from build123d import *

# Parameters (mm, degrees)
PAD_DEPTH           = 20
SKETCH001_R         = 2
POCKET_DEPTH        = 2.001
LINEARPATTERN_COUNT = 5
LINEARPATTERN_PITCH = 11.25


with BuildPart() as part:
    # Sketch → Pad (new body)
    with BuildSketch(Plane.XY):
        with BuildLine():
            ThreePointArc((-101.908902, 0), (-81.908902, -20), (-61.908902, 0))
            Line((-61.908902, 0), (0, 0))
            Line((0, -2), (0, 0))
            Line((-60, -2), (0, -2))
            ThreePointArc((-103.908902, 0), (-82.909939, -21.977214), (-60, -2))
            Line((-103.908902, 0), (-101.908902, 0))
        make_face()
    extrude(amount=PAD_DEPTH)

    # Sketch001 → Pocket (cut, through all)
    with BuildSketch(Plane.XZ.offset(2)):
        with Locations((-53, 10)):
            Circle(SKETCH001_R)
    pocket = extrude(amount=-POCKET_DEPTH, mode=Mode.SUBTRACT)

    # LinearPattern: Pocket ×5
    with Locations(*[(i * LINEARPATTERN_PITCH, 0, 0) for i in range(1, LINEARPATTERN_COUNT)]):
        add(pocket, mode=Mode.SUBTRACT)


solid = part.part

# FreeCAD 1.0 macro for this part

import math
import FreeCAD as App
import Part
import Sketcher
Q = App.Units.Quantity

doc = App.newDocument("Part")
body = doc.addObject("PartDesign::Body", "Body")

# Sketch on XY plane
sketch1 = body.newObject("Sketcher::SketchObject", "Sketch")
sketch1.AttachmentSupport = (doc.getObject("XY_Plane"), [""])
sketch1.MapMode = "FlatFace"
sketch1.addGeometry([
    Part.ArcOfCircle(Part.Circle(App.Vector(-81.908902, 0, 0), App.Vector(0, 0, 1), 20), math.radians(180), math.radians(360)),  # 0
    Part.LineSegment(App.Vector(-101.908902, 0, 0), App.Vector(-103.908902, 0, 0)),  # 1
    Part.ArcOfCircle(Part.Circle(App.Vector(-81.908902, 0, 0), App.Vector(0, 0, 1), 22), math.radians(179.999999), math.radians(354.784092)),  # 2
    Part.LineSegment(App.Vector(-60, -2, 0), App.Vector(0, -2, 0)),  # 3
    Part.LineSegment(App.Vector(0, -2, 0), App.Vector(0, 0, 0)),  # 4
    Part.LineSegment(App.Vector(0, 0, 0), App.Vector(-61.908902, 0, 0)),  # 5
], False)
sketch1.addConstraint([
    Sketcher.Constraint("Coincident", 0, 1, 1, 1),
    Sketcher.Constraint("Coincident", 1, 2, 2, 1),
    Sketcher.Constraint("Coincident", 2, 2, 3, 1),
    Sketcher.Constraint("Coincident", 3, 2, 4, 1),
    Sketcher.Constraint("Coincident", 4, 2, 5, 1),
    Sketcher.Constraint("Coincident", 5, 2, 0, 2),
    Sketcher.Constraint("Horizontal", 1),
    Sketcher.Constraint("Horizontal", 3),
    Sketcher.Constraint("Vertical", 4),
    Sketcher.Constraint("Horizontal", 5),
    Sketcher.Constraint("Coincident", 4, 2, -1, 1),
    Sketcher.Constraint("Coincident", 2, 3, 0, 3),
    Sketcher.Constraint("PointOnObject", 0, 3, -1),
    Sketcher.Constraint("PointOnObject", 0, 1, -1),
    Sketcher.Constraint("Equal", 1, 4),
    Sketcher.Constraint("Radius", 0, Q("20 mm")),
    Sketcher.Constraint("Radius", 2, Q("22 mm")),
    Sketcher.Constraint("DistanceX", 3, 1, 3, 2, Q("60 mm")),
])
pad1 = body.newObject("PartDesign::Pad", "Pad")
pad1.Profile = sketch1
pad1.Length = 20

# Sketch on XZ plane
sketch2 = body.newObject("Sketcher::SketchObject", "Sketch001")
sketch2.AttachmentSupport = (doc.getObject("XZ_Plane"), [""])
sketch2.MapMode = "FlatFace"
sketch2.AttachmentOffset = App.Placement(App.Vector(0, 0, 2), App.Rotation())
sketch2.addGeometry(Part.Circle(App.Vector(-53, 10, 0), App.Vector(0, 0, 1), 2), False)
sketch2.addConstraint([
    Sketcher.Constraint("Diameter", 0, Q("4 mm")),
    Sketcher.Constraint("DistanceX", 0, 3, -1, 1, Q("53 mm")),
    Sketcher.Constraint("DistanceY", -1, 1, 0, 3, Q("10 mm")),
])
pocket1 = body.newObject("PartDesign::Pocket", "Pocket")
pocket1.Profile = sketch2
pocket1.Type = "ThroughAll"
doc.recompute()

linearpattern = body.newObject("PartDesign::LinearPattern", "LinearPattern")
linearpattern.Originals = [pocket1]
linearpattern.Direction = (doc.getObject("X_Axis"), [""])
linearpattern.Mode = "offset"
linearpattern.Offset = 11.25
linearpattern.Occurrences = 5
body.Tip = linearpattern

doc.recompute()
